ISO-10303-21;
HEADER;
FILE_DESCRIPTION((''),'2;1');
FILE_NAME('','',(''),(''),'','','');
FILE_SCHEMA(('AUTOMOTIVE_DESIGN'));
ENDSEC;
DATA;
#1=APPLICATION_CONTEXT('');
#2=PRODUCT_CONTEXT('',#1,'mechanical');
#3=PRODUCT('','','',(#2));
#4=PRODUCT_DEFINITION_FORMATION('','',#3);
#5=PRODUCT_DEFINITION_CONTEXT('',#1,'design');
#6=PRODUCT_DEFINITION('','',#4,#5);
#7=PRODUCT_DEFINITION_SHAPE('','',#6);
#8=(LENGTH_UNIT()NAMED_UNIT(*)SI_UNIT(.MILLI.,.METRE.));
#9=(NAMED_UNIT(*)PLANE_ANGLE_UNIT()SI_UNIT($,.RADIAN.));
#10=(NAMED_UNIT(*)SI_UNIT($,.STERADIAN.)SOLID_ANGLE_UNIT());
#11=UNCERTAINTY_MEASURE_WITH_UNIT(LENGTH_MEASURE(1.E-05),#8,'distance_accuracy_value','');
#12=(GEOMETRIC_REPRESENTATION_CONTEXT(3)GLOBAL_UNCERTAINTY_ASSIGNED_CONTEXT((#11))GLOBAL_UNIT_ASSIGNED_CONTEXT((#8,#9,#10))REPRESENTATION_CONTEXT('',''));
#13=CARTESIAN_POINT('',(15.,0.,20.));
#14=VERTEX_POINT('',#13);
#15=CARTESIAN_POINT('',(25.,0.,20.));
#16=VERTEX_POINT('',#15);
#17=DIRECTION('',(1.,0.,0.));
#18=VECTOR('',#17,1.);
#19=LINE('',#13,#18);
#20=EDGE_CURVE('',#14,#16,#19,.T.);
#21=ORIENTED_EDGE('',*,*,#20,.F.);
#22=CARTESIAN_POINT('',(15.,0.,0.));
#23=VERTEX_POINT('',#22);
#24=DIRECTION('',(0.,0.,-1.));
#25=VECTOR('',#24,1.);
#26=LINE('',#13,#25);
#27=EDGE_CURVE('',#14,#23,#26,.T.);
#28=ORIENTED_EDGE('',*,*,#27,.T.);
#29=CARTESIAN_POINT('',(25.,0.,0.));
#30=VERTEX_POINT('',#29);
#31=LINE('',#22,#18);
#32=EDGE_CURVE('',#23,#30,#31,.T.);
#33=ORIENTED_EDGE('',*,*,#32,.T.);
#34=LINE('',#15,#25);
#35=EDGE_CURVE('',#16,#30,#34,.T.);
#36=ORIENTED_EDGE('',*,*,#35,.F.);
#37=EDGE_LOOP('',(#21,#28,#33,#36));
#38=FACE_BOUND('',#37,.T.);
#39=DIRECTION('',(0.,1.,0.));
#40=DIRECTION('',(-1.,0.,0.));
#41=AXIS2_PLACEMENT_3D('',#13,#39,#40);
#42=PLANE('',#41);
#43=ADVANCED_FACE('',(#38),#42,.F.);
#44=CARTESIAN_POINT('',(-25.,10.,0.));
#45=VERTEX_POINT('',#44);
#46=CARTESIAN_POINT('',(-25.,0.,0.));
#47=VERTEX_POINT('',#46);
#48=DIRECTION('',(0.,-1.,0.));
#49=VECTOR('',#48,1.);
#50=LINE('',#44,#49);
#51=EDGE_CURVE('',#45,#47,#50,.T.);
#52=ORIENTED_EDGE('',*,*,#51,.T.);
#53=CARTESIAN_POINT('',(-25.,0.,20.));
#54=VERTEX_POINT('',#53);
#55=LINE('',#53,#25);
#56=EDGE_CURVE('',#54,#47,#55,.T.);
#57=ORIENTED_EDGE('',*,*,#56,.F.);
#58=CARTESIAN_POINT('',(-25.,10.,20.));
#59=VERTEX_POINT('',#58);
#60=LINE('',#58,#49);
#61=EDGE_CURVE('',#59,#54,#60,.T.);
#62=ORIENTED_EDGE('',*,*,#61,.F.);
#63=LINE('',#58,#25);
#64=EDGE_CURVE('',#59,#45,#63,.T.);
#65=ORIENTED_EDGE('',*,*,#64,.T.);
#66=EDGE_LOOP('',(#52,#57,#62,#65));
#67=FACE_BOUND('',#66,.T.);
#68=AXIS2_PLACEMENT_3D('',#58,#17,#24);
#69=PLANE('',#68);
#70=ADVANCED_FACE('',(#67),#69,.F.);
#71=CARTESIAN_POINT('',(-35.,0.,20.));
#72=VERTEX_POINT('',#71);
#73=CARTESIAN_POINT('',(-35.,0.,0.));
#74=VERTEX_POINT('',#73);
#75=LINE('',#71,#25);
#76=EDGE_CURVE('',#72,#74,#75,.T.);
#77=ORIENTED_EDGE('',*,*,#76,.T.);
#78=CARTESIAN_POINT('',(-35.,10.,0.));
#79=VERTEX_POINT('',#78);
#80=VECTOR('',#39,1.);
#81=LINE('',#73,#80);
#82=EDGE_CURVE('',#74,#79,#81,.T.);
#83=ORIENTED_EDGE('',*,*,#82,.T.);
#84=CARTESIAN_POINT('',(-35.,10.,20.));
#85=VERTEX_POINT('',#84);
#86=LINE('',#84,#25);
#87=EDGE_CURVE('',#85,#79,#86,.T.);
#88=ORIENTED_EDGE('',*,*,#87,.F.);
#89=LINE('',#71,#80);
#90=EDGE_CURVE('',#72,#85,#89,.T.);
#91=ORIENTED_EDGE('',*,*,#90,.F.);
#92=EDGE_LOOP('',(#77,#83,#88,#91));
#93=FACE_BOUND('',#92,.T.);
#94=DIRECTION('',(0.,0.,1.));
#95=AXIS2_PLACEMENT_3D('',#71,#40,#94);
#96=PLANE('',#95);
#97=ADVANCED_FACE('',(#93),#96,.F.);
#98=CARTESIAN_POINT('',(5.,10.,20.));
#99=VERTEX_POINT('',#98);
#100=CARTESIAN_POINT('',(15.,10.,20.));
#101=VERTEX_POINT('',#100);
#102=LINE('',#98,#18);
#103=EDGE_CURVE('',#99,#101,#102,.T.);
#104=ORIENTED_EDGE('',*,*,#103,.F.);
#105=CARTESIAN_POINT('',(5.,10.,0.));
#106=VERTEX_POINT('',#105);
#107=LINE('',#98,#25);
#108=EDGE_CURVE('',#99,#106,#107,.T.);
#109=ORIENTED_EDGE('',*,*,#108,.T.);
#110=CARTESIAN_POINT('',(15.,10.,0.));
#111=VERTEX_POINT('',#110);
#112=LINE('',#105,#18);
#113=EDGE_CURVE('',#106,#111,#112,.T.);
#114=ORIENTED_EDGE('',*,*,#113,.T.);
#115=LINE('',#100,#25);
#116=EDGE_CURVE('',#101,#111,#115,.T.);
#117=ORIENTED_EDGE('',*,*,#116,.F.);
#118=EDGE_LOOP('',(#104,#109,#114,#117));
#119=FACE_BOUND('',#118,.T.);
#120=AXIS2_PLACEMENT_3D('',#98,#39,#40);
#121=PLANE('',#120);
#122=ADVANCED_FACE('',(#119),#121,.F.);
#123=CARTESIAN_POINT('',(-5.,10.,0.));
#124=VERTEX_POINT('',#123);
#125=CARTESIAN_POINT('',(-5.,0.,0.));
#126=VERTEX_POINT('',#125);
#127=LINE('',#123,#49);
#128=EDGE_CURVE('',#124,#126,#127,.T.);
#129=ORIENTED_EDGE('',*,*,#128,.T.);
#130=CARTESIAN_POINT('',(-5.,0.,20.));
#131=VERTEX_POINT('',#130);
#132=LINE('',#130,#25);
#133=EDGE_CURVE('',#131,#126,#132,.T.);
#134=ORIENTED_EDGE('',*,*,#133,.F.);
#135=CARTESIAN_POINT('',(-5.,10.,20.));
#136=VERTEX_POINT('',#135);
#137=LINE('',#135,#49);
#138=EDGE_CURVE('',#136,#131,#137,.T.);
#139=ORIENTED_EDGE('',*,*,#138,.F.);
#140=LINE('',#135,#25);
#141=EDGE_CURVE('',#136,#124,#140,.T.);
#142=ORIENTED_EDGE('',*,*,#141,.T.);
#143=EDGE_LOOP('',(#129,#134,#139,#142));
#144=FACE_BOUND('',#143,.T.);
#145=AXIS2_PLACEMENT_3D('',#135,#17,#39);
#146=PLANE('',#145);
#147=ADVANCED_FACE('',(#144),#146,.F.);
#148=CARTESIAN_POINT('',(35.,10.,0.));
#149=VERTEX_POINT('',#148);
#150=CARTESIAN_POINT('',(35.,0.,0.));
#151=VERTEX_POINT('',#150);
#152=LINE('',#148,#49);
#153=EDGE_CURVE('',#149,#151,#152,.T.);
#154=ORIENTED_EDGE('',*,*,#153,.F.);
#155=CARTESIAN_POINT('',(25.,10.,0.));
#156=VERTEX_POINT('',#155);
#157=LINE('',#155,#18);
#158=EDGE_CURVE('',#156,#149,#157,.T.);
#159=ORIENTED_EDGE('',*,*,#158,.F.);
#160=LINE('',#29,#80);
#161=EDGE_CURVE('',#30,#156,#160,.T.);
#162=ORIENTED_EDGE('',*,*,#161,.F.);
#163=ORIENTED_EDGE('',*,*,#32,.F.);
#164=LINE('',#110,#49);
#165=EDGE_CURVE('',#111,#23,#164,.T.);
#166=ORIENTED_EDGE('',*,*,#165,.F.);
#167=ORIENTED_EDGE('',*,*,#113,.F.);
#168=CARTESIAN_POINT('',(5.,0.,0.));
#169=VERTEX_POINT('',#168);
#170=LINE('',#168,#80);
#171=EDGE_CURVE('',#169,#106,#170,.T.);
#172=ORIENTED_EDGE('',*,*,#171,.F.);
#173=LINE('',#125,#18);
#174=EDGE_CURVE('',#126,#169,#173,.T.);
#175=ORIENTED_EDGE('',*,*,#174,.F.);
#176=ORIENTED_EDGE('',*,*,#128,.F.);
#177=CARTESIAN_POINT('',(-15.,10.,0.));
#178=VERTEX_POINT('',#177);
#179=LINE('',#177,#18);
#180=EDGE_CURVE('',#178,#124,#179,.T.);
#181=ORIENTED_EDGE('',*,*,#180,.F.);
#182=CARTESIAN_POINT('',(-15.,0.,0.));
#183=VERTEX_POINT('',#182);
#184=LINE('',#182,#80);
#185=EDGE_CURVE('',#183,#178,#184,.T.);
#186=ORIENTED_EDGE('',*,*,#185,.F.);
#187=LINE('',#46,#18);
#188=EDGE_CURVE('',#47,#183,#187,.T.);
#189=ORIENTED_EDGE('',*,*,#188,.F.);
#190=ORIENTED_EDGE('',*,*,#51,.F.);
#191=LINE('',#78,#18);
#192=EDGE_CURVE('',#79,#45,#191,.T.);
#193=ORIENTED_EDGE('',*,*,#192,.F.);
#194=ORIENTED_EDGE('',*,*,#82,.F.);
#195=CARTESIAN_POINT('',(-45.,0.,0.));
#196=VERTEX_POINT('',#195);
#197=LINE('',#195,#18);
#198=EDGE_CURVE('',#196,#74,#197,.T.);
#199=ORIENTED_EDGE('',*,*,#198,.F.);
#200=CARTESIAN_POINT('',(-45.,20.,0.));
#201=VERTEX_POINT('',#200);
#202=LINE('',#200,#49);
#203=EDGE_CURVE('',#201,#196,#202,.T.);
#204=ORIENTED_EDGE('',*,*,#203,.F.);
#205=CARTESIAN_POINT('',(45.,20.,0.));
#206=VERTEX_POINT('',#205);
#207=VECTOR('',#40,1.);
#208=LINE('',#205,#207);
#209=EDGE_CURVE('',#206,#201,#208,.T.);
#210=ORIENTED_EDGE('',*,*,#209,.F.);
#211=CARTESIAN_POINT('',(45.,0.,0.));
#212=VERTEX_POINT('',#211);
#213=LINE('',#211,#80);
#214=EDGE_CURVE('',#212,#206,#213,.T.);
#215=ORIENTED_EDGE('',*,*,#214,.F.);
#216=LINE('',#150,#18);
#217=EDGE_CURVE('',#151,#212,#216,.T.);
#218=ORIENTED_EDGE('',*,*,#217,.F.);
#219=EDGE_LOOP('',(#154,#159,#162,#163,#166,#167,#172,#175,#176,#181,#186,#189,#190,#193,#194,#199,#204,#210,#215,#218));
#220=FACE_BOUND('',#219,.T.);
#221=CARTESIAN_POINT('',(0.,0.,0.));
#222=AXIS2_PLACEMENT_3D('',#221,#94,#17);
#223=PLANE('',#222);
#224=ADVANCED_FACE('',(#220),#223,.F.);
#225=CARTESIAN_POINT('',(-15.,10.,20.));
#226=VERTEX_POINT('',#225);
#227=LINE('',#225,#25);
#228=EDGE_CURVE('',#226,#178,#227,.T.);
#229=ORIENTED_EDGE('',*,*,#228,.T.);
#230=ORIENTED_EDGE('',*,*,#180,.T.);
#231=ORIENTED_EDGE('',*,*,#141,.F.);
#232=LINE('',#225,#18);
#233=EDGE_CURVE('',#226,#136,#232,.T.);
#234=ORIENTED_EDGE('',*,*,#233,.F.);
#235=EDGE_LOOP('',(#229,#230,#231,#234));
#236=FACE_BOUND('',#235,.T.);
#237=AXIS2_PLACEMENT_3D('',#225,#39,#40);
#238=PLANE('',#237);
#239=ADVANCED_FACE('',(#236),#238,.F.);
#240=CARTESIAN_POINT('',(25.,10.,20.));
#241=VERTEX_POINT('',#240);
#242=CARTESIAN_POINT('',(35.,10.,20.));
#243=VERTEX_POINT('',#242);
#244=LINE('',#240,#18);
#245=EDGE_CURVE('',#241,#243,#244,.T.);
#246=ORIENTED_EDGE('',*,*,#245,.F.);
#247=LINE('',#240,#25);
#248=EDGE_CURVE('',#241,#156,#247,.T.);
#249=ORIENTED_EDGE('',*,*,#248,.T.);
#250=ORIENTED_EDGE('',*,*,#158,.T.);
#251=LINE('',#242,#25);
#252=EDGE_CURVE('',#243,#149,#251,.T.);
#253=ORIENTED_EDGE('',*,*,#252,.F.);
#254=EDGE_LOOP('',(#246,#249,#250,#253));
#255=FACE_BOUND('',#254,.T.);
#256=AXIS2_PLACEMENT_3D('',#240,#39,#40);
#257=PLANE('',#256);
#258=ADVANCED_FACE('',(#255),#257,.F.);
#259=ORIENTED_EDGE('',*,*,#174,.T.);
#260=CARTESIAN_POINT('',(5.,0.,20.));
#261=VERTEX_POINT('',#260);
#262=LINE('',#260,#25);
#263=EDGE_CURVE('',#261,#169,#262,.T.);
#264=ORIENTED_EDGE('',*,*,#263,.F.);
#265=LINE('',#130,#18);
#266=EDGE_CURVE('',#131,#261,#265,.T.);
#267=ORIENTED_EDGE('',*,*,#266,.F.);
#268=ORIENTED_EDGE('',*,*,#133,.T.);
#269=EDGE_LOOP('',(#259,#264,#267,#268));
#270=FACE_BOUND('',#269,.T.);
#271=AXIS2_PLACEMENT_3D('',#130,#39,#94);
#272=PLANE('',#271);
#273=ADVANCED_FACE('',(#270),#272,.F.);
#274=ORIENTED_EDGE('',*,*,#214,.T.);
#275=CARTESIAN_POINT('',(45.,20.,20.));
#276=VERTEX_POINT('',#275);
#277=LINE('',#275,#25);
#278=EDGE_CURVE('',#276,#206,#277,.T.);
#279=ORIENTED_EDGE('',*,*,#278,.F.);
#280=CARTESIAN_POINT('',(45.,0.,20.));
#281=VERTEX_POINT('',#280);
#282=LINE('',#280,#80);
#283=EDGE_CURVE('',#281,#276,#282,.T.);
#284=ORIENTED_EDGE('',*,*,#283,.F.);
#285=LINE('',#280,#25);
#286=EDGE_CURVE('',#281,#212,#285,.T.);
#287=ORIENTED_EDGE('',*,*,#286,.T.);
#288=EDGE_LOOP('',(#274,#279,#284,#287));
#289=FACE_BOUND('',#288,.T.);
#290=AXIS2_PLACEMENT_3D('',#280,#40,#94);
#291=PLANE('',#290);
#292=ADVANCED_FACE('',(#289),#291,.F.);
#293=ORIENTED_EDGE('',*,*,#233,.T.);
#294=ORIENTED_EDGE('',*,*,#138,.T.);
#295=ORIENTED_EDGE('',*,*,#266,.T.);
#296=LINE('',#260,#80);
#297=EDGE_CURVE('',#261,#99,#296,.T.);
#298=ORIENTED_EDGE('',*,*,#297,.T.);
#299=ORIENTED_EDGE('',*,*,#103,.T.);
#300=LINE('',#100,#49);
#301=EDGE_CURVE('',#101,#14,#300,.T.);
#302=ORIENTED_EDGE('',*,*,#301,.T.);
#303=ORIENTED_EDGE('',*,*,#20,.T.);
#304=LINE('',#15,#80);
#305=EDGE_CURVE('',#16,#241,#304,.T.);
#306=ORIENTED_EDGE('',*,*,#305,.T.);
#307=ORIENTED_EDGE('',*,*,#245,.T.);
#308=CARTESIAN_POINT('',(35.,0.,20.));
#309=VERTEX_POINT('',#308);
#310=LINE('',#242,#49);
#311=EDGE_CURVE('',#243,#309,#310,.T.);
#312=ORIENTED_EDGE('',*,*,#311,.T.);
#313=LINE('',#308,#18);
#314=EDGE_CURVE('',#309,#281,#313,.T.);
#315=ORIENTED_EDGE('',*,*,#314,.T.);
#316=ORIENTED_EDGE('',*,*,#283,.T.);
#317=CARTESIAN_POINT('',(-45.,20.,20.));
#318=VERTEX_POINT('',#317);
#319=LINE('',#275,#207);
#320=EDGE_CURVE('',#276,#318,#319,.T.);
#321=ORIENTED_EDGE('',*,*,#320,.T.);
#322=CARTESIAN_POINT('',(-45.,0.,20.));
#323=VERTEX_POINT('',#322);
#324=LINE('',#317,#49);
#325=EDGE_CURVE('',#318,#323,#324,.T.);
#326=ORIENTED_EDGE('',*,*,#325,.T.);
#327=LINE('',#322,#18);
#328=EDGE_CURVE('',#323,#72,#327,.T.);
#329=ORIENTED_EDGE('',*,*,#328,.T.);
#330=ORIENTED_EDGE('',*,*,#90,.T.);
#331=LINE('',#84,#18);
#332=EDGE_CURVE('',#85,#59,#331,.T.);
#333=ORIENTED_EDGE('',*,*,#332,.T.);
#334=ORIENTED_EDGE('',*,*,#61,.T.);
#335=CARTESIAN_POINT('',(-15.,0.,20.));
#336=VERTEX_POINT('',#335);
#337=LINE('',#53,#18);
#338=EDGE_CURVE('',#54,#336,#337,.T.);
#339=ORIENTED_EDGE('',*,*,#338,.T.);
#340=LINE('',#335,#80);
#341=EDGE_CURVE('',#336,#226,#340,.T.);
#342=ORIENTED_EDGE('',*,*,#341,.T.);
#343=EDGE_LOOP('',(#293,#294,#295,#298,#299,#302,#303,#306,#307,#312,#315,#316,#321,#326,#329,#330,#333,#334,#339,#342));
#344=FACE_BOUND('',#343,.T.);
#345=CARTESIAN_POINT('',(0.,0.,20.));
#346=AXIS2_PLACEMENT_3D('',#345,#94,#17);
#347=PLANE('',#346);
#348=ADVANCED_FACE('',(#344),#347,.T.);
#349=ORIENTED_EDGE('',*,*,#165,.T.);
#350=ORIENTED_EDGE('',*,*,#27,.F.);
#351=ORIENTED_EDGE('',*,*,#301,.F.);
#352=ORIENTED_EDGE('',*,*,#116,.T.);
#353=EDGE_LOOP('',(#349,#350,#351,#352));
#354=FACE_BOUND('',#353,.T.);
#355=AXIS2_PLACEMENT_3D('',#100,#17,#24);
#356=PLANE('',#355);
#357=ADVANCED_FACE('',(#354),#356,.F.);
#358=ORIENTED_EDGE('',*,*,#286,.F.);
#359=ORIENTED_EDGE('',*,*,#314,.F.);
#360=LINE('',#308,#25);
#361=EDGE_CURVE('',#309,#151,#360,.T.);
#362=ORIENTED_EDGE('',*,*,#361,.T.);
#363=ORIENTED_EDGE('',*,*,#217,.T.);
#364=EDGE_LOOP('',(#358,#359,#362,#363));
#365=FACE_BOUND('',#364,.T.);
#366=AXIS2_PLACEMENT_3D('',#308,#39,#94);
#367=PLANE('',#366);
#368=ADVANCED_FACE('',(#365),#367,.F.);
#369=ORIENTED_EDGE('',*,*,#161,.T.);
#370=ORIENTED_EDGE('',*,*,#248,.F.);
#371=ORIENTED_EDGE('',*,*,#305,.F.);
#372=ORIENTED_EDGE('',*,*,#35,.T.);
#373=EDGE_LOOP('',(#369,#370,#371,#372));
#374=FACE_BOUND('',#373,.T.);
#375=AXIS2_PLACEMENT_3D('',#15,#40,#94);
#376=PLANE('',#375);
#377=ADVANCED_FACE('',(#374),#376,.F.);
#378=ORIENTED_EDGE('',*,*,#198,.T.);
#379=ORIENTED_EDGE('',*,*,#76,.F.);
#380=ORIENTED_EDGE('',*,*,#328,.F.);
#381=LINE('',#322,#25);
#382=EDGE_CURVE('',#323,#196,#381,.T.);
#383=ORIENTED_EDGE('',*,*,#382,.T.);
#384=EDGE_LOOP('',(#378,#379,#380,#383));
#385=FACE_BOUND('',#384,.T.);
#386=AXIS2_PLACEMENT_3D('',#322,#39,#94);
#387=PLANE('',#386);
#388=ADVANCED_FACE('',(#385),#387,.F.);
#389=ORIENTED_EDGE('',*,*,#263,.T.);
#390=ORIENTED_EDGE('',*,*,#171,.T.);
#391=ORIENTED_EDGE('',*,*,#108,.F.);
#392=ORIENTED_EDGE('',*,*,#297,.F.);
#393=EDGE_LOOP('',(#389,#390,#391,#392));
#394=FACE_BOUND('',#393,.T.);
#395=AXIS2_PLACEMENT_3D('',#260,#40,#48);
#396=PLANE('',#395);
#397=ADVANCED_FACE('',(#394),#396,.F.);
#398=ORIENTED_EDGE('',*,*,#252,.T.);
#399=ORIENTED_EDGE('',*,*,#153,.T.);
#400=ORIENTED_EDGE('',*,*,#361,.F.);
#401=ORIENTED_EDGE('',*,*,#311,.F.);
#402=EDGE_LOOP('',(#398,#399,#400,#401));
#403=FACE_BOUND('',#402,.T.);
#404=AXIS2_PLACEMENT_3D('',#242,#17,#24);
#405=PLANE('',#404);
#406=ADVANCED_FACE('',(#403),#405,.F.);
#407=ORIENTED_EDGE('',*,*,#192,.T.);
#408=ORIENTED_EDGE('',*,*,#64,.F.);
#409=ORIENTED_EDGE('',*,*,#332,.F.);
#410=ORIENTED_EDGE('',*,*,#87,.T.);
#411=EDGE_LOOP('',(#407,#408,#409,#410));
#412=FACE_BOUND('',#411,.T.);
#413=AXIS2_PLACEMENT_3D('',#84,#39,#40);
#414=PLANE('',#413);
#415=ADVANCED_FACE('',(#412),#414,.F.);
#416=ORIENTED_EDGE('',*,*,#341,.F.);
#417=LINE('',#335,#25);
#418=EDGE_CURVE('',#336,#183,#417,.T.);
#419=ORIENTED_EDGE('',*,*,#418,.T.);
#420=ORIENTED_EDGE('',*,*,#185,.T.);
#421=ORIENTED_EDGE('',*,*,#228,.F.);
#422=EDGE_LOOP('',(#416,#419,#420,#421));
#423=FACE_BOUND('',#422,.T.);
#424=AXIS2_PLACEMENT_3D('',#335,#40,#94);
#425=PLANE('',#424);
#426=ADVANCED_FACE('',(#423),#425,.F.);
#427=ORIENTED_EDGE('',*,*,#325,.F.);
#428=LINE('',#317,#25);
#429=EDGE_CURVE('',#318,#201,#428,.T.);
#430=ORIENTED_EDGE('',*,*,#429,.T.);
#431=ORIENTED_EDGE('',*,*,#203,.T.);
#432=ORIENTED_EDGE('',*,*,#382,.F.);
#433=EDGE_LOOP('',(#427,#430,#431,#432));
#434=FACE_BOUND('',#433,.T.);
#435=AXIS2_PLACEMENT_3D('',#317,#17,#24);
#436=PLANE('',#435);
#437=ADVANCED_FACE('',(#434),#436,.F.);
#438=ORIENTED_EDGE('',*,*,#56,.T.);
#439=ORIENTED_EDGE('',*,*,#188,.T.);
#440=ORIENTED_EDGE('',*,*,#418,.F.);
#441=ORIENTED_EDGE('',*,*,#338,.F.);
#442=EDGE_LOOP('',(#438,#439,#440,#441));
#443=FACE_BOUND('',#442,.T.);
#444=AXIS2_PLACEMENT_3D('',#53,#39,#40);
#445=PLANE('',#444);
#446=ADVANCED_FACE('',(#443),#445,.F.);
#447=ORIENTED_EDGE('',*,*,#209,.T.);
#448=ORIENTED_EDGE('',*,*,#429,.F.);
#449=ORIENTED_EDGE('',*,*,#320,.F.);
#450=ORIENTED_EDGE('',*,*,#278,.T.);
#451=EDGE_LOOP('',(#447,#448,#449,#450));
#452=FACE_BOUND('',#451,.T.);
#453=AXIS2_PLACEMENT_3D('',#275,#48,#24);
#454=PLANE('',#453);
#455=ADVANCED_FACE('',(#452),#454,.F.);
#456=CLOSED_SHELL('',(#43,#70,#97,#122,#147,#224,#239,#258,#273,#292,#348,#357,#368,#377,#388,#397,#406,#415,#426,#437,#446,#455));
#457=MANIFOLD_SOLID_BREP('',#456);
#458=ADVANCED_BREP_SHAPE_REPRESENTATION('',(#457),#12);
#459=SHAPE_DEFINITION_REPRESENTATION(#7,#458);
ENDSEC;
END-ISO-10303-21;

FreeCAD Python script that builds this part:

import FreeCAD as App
import Part
import Sketcher
Q = App.Units.Quantity

doc = App.newDocument("Part")
params = doc.addObject("Spreadsheet::Sheet", "Params")
for row, (alias, value) in enumerate([
    ("sketch1_width", "10 mm"),
    ("sketch1_height", "20 mm"),
    ("pad1_length", "20 mm"),
], start=1):
    params.set(f"A{row}", alias)
    params.set(f"B{row}", "=" + value)
    params.setAlias(f"B{row}", alias)

body = doc.addObject("PartDesign::Body", "Body")

# Sketch on XY plane
sketch1 = doc.addObject("Sketcher::SketchObject", "Sketch")
body.addObject(sketch1)
sketch1.AttachmentSupport = (doc.XY_Plane, [""])
sketch1.MapMode = "FlatFace"
sketch1.addGeometry([
    Part.LineSegment(App.Vector(-5, 0, 0), App.Vector(5, 0, 0)),  # 0
    Part.LineSegment(App.Vector(5, 0, 0), App.Vector(5, 10, 0)),  # 1
    Part.LineSegment(App.Vector(5, 10, 0), App.Vector(15, 10, 0)),  # 2
    Part.LineSegment(App.Vector(15, 10, 0), App.Vector(15, 0, 0)),  # 3
    Part.LineSegment(App.Vector(15, 0, 0), App.Vector(25, 0, 0)),  # 4
    Part.LineSegment(App.Vector(25, 0, 0), App.Vector(25, 10, 0)),  # 5
    Part.LineSegment(App.Vector(25, 10, 0), App.Vector(35, 10, 0)),  # 6
    Part.LineSegment(App.Vector(35, 10, 0), App.Vector(35, 0, 0)),  # 7
    Part.LineSegment(App.Vector(35, 0, 0), App.Vector(45, 0, 0)),  # 8
    Part.LineSegment(App.Vector(45, 0, 0), App.Vector(45, 20, 0)),  # 9
    Part.LineSegment(App.Vector(45, 20, 0), App.Vector(-45, 20, 0)),  # 10
    Part.LineSegment(App.Vector(-45, 20, 0), App.Vector(-45, 0, 0)),  # 11
    Part.LineSegment(App.Vector(-45, 0, 0), App.Vector(-35, 0, 0)),  # 12
    Part.LineSegment(App.Vector(-35, 0, 0), App.Vector(-35, 10, 0)),  # 13
    Part.LineSegment(App.Vector(-35, 10, 0), App.Vector(-25, 10, 0)),  # 14
    Part.LineSegment(App.Vector(-25, 10, 0), App.Vector(-25, 0, 0)),  # 15
    Part.LineSegment(App.Vector(-25, 0, 0), App.Vector(-15, 0, 0)),  # 16
    Part.LineSegment(App.Vector(-15, 0, 0), App.Vector(-15, 10, 0)),  # 17
    Part.LineSegment(App.Vector(-15, 10, 0), App.Vector(-5, 10, 0)),  # 18
    Part.LineSegment(App.Vector(-5, 10, 0), App.Vector(-5, 0, 0)),  # 19
], False)
sketch1.addConstraint([
    Sketcher.Constraint("Coincident", 0, 2, 1, 1),
    Sketcher.Constraint("Coincident", 1, 2, 2, 1),
    Sketcher.Constraint("Coincident", 2, 2, 3, 1),
    Sketcher.Constraint("Coincident", 3, 2, 4, 1),
    Sketcher.Constraint("Coincident", 4, 2, 5, 1),
    Sketcher.Constraint("Coincident", 5, 2, 6, 1),
    Sketcher.Constraint("Coincident", 6, 2, 7, 1),
    Sketcher.Constraint("Coincident", 7, 2, 8, 1),
    Sketcher.Constraint("Coincident", 8, 2, 9, 1),
    Sketcher.Constraint("Coincident", 9, 2, 10, 1),
    Sketcher.Constraint("Coincident", 10, 2, 11, 1),
    Sketcher.Constraint("Coincident", 11, 2, 12, 1),
    Sketcher.Constraint("Coincident", 12, 2, 13, 1),
    Sketcher.Constraint("Coincident", 13, 2, 14, 1),
    Sketcher.Constraint("Coincident", 14, 2, 15, 1),
    Sketcher.Constraint("Coincident", 15, 2, 16, 1),
    Sketcher.Constraint("Coincident", 16, 2, 17, 1),
    Sketcher.Constraint("Coincident", 17, 2, 18, 1),
    Sketcher.Constraint("Coincident", 18, 2, 19, 1),
    Sketcher.Constraint("Coincident", 19, 2, 0, 1),
    Sketcher.Constraint("Horizontal", 0),
    Sketcher.Constraint("Vertical", 1),
    Sketcher.Constraint("Horizontal", 2),
    Sketcher.Constraint("Vertical", 3),
    Sketcher.Constraint("Horizontal", 4),
    Sketcher.Constraint("Vertical", 5),
    Sketcher.Constraint("Horizontal", 6),
    Sketcher.Constraint("Vertical", 7),
    Sketcher.Constraint("Horizontal", 8),
    Sketcher.Constraint("Vertical", 9),
    Sketcher.Constraint("Horizontal", 10),
    Sketcher.Constraint("Vertical", 11),
    Sketcher.Constraint("Horizontal", 12),
    Sketcher.Constraint("Vertical", 13),
    Sketcher.Constraint("Horizontal", 14),
    Sketcher.Constraint("Vertical", 15),
    Sketcher.Constraint("Horizontal", 16),
    Sketcher.Constraint("Vertical", 17),
    Sketcher.Constraint("Horizontal", 18),
    Sketcher.Constraint("Vertical", 19),
    Sketcher.Constraint("Symmetric", 8, 2, 11, 2, -1, 1),
    Sketcher.Constraint("Symmetric", 4, 2, 15, 2, -1, 1),
    Sketcher.Constraint("Symmetric", 0, 2, 19, 2, -1, 1),
    Sketcher.Constraint("Symmetric", 7, 2, 12, 2, -2),
    Sketcher.Constraint("Symmetric", 3, 2, 16, 2, -2),
    Sketcher.Constraint("Horizontal", 2, 2, 5, 2),
    Sketcher.Constraint("Horizontal", 6, 2, 13, 2),
    Sketcher.Constraint("Horizontal", 14, 2, 17, 2),
    Sketcher.Constraint("Equal", 0, 2),
    Sketcher.Constraint("Equal", 2, 4),
    Sketcher.Constraint("Equal", 4, 6),
    Sketcher.Constraint("Equal", 6, 8),
    Sketcher.Constraint("Equal", 18, 1),
    Sketcher.Constraint("DistanceX", 0, 1, 0, 2, Q("10 mm")),
    Sketcher.Constraint("DistanceY", 9, 1, 9, 2, Q("20 mm")),
])
sketch1.setExpression("Constraints[53]", "Params.sketch1_width")
sketch1.setExpression("Constraints[54]", "Params.sketch1_height")
pad1 = doc.addObject("PartDesign::Pad", "Pad")
body.addObject(pad1)
pad1.Profile = sketch1
pad1.setExpression("Length", "Params.pad1_length")

doc.recompute()
